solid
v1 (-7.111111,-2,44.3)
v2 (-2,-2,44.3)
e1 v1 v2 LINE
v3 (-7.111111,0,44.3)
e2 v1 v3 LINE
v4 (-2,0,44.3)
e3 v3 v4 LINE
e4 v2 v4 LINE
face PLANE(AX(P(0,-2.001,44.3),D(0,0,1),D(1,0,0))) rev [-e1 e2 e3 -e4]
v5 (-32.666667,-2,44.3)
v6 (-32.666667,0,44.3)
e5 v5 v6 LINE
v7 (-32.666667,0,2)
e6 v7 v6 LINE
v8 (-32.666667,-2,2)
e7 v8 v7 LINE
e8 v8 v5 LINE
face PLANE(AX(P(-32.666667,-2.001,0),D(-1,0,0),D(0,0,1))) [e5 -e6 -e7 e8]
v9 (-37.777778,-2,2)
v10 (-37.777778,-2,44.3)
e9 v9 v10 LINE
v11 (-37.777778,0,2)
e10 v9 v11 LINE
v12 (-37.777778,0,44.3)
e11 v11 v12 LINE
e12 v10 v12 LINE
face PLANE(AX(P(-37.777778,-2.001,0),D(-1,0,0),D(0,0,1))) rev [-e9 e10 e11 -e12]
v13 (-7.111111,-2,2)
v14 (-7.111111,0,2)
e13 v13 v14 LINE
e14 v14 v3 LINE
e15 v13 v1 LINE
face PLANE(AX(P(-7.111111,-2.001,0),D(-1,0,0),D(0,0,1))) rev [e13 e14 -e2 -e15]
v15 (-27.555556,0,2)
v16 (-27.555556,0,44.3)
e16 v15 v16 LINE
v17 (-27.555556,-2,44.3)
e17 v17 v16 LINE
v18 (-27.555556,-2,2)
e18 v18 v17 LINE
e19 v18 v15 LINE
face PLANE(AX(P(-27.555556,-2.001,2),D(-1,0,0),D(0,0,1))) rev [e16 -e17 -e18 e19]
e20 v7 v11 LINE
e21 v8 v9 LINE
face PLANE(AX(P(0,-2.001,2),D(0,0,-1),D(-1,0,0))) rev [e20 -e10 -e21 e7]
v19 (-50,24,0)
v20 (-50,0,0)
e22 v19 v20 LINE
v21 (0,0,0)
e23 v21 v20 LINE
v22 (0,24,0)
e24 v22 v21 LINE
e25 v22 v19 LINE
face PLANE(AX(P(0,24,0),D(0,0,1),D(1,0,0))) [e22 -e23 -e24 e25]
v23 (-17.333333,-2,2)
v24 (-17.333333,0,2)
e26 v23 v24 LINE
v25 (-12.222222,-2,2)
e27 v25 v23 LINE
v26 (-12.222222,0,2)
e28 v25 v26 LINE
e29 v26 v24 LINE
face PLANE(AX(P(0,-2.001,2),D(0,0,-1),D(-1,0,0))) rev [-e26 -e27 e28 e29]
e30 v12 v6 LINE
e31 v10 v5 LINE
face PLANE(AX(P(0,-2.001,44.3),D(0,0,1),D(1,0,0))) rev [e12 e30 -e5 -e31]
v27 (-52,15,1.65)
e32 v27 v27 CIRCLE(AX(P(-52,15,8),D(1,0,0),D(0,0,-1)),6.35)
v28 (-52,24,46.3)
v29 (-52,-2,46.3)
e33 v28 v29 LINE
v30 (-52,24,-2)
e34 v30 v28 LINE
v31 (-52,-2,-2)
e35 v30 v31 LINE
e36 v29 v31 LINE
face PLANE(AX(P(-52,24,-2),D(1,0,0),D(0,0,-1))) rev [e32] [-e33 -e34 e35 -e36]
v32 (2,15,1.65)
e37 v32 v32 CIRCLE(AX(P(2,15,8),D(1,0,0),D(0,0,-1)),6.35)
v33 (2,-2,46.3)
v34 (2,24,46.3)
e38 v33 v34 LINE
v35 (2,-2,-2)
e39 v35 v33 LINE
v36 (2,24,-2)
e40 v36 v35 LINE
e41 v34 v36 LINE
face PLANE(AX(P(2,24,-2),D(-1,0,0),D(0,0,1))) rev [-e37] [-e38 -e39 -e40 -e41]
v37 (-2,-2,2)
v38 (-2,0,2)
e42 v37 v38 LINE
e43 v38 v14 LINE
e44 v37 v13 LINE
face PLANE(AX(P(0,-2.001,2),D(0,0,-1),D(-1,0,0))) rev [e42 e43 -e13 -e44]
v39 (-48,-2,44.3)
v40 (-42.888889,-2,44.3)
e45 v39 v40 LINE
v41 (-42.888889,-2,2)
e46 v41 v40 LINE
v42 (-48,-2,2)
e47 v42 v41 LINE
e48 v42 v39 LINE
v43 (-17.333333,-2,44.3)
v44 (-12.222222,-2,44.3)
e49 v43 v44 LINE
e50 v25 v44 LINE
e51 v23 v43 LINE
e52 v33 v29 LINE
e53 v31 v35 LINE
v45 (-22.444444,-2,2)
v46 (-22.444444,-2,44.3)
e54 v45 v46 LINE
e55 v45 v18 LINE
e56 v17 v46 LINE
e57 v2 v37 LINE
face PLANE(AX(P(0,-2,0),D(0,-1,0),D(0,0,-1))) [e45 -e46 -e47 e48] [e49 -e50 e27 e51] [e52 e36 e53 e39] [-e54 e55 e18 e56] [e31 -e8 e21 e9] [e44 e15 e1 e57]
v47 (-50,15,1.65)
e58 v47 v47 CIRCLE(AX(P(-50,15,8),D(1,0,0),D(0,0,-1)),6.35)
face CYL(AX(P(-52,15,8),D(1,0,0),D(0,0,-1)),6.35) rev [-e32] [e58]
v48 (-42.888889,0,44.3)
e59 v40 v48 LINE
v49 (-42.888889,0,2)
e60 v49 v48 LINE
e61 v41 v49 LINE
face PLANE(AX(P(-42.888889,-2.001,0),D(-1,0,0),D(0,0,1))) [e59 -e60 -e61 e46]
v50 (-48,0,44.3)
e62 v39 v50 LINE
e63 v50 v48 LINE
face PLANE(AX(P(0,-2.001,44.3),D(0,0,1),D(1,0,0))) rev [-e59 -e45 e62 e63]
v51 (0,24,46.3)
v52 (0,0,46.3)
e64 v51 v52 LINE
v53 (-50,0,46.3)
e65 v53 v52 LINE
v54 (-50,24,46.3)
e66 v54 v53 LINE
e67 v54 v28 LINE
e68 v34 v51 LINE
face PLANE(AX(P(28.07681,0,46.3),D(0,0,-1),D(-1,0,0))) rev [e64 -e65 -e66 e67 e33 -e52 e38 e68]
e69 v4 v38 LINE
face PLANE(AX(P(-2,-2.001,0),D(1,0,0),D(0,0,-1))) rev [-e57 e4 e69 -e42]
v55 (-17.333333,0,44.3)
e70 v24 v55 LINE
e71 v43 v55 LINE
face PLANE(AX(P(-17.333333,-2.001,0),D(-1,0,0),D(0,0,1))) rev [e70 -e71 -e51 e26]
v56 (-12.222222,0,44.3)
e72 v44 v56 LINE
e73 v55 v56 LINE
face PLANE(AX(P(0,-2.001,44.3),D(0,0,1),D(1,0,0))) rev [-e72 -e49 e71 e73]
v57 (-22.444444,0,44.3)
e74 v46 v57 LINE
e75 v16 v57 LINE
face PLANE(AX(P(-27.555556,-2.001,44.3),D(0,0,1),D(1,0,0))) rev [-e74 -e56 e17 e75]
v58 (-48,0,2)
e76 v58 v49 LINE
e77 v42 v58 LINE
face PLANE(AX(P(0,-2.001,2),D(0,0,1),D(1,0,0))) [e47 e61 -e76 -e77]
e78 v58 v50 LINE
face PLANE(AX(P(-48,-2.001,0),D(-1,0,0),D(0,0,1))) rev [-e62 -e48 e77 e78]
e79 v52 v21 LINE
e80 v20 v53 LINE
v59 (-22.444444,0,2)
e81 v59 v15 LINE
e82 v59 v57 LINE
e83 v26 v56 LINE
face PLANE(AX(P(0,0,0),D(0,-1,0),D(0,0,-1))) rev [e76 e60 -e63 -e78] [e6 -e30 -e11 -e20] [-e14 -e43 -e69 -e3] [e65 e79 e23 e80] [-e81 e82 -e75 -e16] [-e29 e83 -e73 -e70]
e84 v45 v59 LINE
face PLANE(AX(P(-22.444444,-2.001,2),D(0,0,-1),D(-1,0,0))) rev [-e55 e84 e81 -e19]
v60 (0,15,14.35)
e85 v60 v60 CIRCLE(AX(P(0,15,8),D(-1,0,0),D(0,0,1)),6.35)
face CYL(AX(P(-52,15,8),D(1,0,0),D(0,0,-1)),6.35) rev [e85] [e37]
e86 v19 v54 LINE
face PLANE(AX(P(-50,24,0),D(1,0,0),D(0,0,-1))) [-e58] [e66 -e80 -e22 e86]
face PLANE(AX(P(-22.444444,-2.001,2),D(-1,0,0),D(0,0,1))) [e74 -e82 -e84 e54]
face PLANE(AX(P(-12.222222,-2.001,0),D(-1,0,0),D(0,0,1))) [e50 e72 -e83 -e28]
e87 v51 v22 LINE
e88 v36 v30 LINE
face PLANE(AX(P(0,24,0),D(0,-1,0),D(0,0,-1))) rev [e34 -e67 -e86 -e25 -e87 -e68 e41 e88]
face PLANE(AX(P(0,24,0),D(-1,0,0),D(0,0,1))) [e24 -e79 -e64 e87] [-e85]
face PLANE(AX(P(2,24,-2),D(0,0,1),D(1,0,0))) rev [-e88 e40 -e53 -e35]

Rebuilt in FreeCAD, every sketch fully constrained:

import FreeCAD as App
import Part
import Sketcher
Q = App.Units.Quantity

doc = App.newDocument("Part")
body = doc.addObject("PartDesign::Body", "Body")

sketch1 = body.newObject("Sketcher::SketchObject", "Sketch")
sketch1.AttachmentSupport = (doc.getObject("XZ_Plane"), [""])
sketch1.MapMode = "FlatFace"
sketch1.addGeometry(Part.LineSegment(App.Vector(-52, -2, 0), App.Vector(-52, 48, 0)), False)
sketch1.addGeometry(Part.LineSegment(App.Vector(-52, 48, 0), App.Vector(2, 48, 0)), False)
sketch1.addGeometry(Part.LineSegment(App.Vector(2, 48, 0), App.Vector(2, -2, 0)), False)
sketch1.addGeometry(Part.LineSegment(App.Vector(2, -2, 0), App.Vector(-52, -2, 0)), False)
sketch1.addGeometry(Part.LineSegment(App.Vector(0, 46, 0), App.Vector(-50, 46, 0)), False)
sketch1.addGeometry(Part.LineSegment(App.Vector(-50, 46, 0), App.Vector(-50, 0, 0)), False)
sketch1.addGeometry(Part.LineSegment(App.Vector(-50, 0, 0), App.Vector(0, 0, 0)), False)
sketch1.addGeometry(Part.LineSegment(App.Vector(0, 0, 0), App.Vector(0, 46, 0)), False)
sketch1.addConstraint(Sketcher.Constraint("Coincident", 0, 2, 1, 1))
sketch1.addConstraint(Sketcher.Constraint("Coincident", 1, 2, 2, 1))
sketch1.addConstraint(Sketcher.Constraint("Coincident", 2, 2, 3, 1))
sketch1.addConstraint(Sketcher.Constraint("Coincident", 3, 2, 0, 1))
sketch1.addConstraint(Sketcher.Constraint("Coincident", 4, 2, 5, 1))
sketch1.addConstraint(Sketcher.Constraint("Coincident", 5, 2, 6, 1))
sketch1.addConstraint(Sketcher.Constraint("Coincident", 6, 2, 7, 1))
sketch1.addConstraint(Sketcher.Constraint("Coincident", 7, 2, 4, 1))
sketch1.addConstraint(Sketcher.Constraint("Vertical", 0))
sketch1.addConstraint(Sketcher.Constraint("Horizontal", 1))
sketch1.addConstraint(Sketcher.Constraint("Vertical", 2))
sketch1.addConstraint(Sketcher.Constraint("Horizontal", 3))
sketch1.addConstraint(Sketcher.Constraint("Horizontal", 4))
sketch1.addConstraint(Sketcher.Constraint("Vertical", 5))
sketch1.addConstraint(Sketcher.Constraint("Horizontal", 6))
sketch1.addConstraint(Sketcher.Constraint("Vertical", 7))
sketch1.addConstraint(Sketcher.Constraint("Coincident", 6, 2, -1, 1))
sketch1.addConstraint(Sketcher.Constraint("DistanceX", 1, 1, 1, 2, Q("54 mm")))
sketch1.addConstraint(Sketcher.Constraint("DistanceX", 4, 2, 4, 1, Q("50 mm")))
sketch1.addConstraint(Sketcher.Constraint("DistanceY", 0, 1, 0, 2, Q("50.3 mm")))
sketch1.addConstraint(Sketcher.Constraint("DistanceY", 5, 2, 5, 1, Q("46.3 mm")))
sketch1.addConstraint(Sketcher.Constraint("DistanceX", 0, 2, -1, 1, Q("52 mm")))
sketch1.addConstraint(Sketcher.Constraint("DistanceY", 2, 2, -1, 1, Q("2 mm")))
pad1 = body.newObject("PartDesign::Pad", "Pad")
pad1.Profile = sketch1
pad1.Length = 24
pad1.Reversed = True

sketch2 = body.newObject("Sketcher::SketchObject", "Sketch001")
sketch2.AttachmentSupport = (doc.getObject("XZ_Plane"), [""])
sketch2.MapMode = "FlatFace"
sketch2.addGeometry(Part.LineSegment(App.Vector(-52, 48, 0), App.Vector(-52, -2, 0)), False)
sketch2.addGeometry(Part.LineSegment(App.Vector(-52, -2, 0), App.Vector(2, -2, 0)), False)
sketch2.addGeometry(Part.LineSegment(App.Vector(2, -2, 0), App.Vector(2, 48, 0)), False)
sketch2.addGeometry(Part.LineSegment(App.Vector(2, 48, 0), App.Vector(-52, 48, 0)), False)
sketch2.addConstraint(Sketcher.Constraint("Coincident", 0, 2, 1, 1))
sketch2.addConstraint(Sketcher.Constraint("Coincident", 1, 2, 2, 1))
sketch2.addConstraint(Sketcher.Constraint("Coincident", 2, 2, 3, 1))
sketch2.addConstraint(Sketcher.Constraint("Coincident", 3, 2, 0, 1))
sketch2.addConstraint(Sketcher.Constraint("Vertical", 0))
sketch2.addConstraint(Sketcher.Constraint("Horizontal", 1))
sketch2.addConstraint(Sketcher.Constraint("Vertical", 2))
sketch2.addConstraint(Sketcher.Constraint("Horizontal", 3))
sketch2.addConstraint(Sketcher.Constraint("DistanceX", 1, 1, 1, 2, Q("54 mm")))
sketch2.addConstraint(Sketcher.Constraint("DistanceY", 0, 2, 0, 1, Q("50.3 mm")))
sketch2.addConstraint(Sketcher.Constraint("DistanceX", 0, 2, -1, 1, Q("52 mm")))
sketch2.addConstraint(Sketcher.Constraint("DistanceY", 0, 2, -1, 1, Q("2 mm")))
pad2 = body.newObject("PartDesign::Pad", "Pad001")
pad2.Profile = sketch2
pad2.Length = 2

sketch3 = body.newObject("Sketcher::SketchObject", "Sketch002")
sketch3.AttachmentSupport = (doc.getObject("YZ_Plane"), [""])
sketch3.MapMode = "FlatFace"
sketch3.AttachmentOffset = App.Placement(App.Vector(0, 0, -52), App.Rotation())
sketch3.addGeometry(Part.LineSegment(App.Vector(24, 46.3, 0), App.Vector(-2, 46.3, 0)), False)
sketch3.addGeometry(Part.LineSegment(App.Vector(-2, 46.3, 0), App.Vector(-2, 48.3, 0)), False)
sketch3.addGeometry(Part.LineSegment(App.Vector(-2, 48.3, 0), App.Vector(24, 48.3, 0)), False)
sketch3.addGeometry(Part.LineSegment(App.Vector(24, 48.3, 0), App.Vector(24, 46.3, 0)), False)
sketch3.addConstraint(Sketcher.Constraint("Coincident", 0, 2, 1, 1))
sketch3.addConstraint(Sketcher.Constraint("Coincident", 1, 2, 2, 1))
sketch3.addConstraint(Sketcher.Constraint("Coincident", 2, 2, 3, 1))
sketch3.addConstraint(Sketcher.Constraint("Coincident", 3, 2, 0, 1))
sketch3.addConstraint(Sketcher.Constraint("Horizontal", 0))
sketch3.addConstraint(Sketcher.Constraint("Vertical", 1))
sketch3.addConstraint(Sketcher.Constraint("Horizontal", 2))
sketch3.addConstraint(Sketcher.Constraint("Vertical", 3))
sketch3.addConstraint(Sketcher.Constraint("DistanceX", 0, 2, 0, 1, Q("26 mm")))
sketch3.addConstraint(Sketcher.Constraint("DistanceY", 1, 1, 1, 2, Q("2 mm")))
sketch3.addConstraint(Sketcher.Constraint("DistanceX", 0, 2, -1, 1, Q("2 mm")))
sketch3.addConstraint(Sketcher.Constraint("DistanceY", -1, 1, 0, 2, Q("46.3 mm")))
pocket1 = body.newObject("PartDesign::Pocket", "Pocket")
pocket1.Profile = sketch3
pocket1.Length = 54
pocket1.Reversed = True

sketch4 = body.newObject("Sketcher::SketchObject", "Sketch003")
sketch4.AttachmentSupport = (doc.getObject("XZ_Plane"), [""])
sketch4.MapMode = "FlatFace"
sketch4.addGeometry(Part.LineSegment(App.Vector(-48, 2, 0), App.Vector(-48, 44, 0)), False)
sketch4.addGeometry(Part.LineSegment(App.Vector(-48, 44, 0), App.Vector(-43, 44, 0)), False)
sketch4.addGeometry(Part.LineSegment(App.Vector(-43, 44, 0), App.Vector(-43, 2, 0)), False)
sketch4.addGeometry(Part.LineSegment(App.Vector(-43, 2, 0), App.Vector(-48, 2, 0)), False)
sketch4.addConstraint(Sketcher.Constraint("Coincident", 0, 2, 1, 1))
sketch4.addConstraint(Sketcher.Constraint("Coincident", 1, 2, 2, 1))
sketch4.addConstraint(Sketcher.Constraint("Coincident", 2, 2, 3, 1))
sketch4.addConstraint(Sketcher.Constraint("Coincident", 3, 2, 0, 1))
sketch4.addConstraint(Sketcher.Constraint("Vertical", 0))
sketch4.addConstraint(Sketcher.Constraint("Horizontal", 1))
sketch4.addConstraint(Sketcher.Constraint("Vertical", 2))
sketch4.addConstraint(Sketcher.Constraint("Horizontal", 3))
sketch4.addConstraint(Sketcher.Constraint("DistanceY", 0, 1, 0, 2, Q("42.3 mm")))
sketch4.addConstraint(Sketcher.Constraint("DistanceX", 0, 2, -1, 1, Q("48 mm")))
sketch4.addConstraint(Sketcher.Constraint("DistanceY", -1, 1, 2, 2, Q("2 mm")))
sketch4.addConstraint(Sketcher.Constraint("DistanceX", 1, 1, 1, 2, Q("5.111111 mm")))
pocket2 = body.newObject("PartDesign::Pocket", "Pocket001")
pocket2.Profile = sketch4
pocket2.Type = "UpToFirst"
pocket2.Reversed = True

sketch5 = body.newObject("Sketcher::SketchObject", "Sketch004")
sketch5.AttachmentSupport = (doc.getObject("XZ_Plane"), [""])
sketch5.MapMode = "FlatFace"
sketch5.addGeometry(Part.LineSegment(App.Vector(-38, 2, 0), App.Vector(-38, 44, 0)), False)
sketch5.addGeometry(Part.LineSegment(App.Vector(-38, 44, 0), App.Vector(-33, 44, 0)), False)
sketch5.addGeometry(Part.LineSegment(App.Vector(-33, 44, 0), App.Vector(-33, 2, 0)), False)
sketch5.addGeometry(Part.LineSegment(App.Vector(-33, 2, 0), App.Vector(-38, 2, 0)), False)
sketch5.addConstraint(Sketcher.Constraint("Coincident", 0, 2, 1, 1))
sketch5.addConstraint(Sketcher.Constraint("Coincident", 1, 2, 2, 1))
sketch5.addConstraint(Sketcher.Constraint("Coincident", 2, 2, 3, 1))
sketch5.addConstraint(Sketcher.Constraint("Coincident", 3, 2, 0, 1))
sketch5.addConstraint(Sketcher.Constraint("Vertical", 0))
sketch5.addConstraint(Sketcher.Constraint("Horizontal", 1))
sketch5.addConstraint(Sketcher.Constraint("Vertical", 2))
sketch5.addConstraint(Sketcher.Constraint("Horizontal", 3))
sketch5.addConstraint(Sketcher.Constraint("DistanceY", 0, 1, 0, 2, Q("42.3 mm")))
sketch5.addConstraint(Sketcher.Constraint("DistanceY", -1, 1, 2, 2, Q("2 mm")))
sketch5.addConstraint(Sketcher.Constraint("DistanceX", 1, 1, 1, 2, Q("5.111111 mm")))
sketch5.addConstraint(Sketcher.Constraint("DistanceX", 0, 2, -1, 1, Q("37.777778 mm")))
pocket3 = body.newObject("PartDesign::Pocket", "Pocket002")
pocket3.Profile = sketch5
pocket3.Type = "UpToFirst"
pocket3.Reversed = True

sketch6 = body.newObject("Sketcher::SketchObject", "Sketch005")
sketch6.AttachmentSupport = (doc.getObject("XZ_Plane"), [""])
sketch6.MapMode = "FlatFace"
sketch6.addGeometry(Part.LineSegment(App.Vector(-17, 2, 0), App.Vector(-17, 44, 0)), False)
sketch6.addGeometry(Part.LineSegment(App.Vector(-17, 44, 0), App.Vector(-12, 44, 0)), False)
sketch6.addGeometry(Part.LineSegment(App.Vector(-12, 44, 0), App.Vector(-12, 2, 0)), False)
sketch6.addGeometry(Part.LineSegment(App.Vector(-12, 2, 0), App.Vector(-17, 2, 0)), False)
sketch6.addConstraint(Sketcher.Constraint("Coincident", 0, 2, 1, 1))
sketch6.addConstraint(Sketcher.Constraint("Coincident", 1, 2, 2, 1))
sketch6.addConstraint(Sketcher.Constraint("Coincident", 2, 2, 3, 1))
sketch6.addConstraint(Sketcher.Constraint("Coincident", 3, 2, 0, 1))
sketch6.addConstraint(Sketcher.Constraint("Vertical", 0))
sketch6.addConstraint(Sketcher.Constraint("Horizontal", 1))
sketch6.addConstraint(Sketcher.Constraint("Vertical", 2))
sketch6.addConstraint(Sketcher.Constraint("Horizontal", 3))
sketch6.addConstraint(Sketcher.Constraint("DistanceY", 0, 1, 0, 2, Q("42.3 mm")))
sketch6.addConstraint(Sketcher.Constraint("DistanceY", -1, 1, 2, 2, Q("2 mm")))
sketch6.addConstraint(Sketcher.Constraint("DistanceX", 1, 1, 1, 2, Q("5.111111 mm")))
sketch6.addConstraint(Sketcher.Constraint("DistanceX", 0, 2, -1, 1, Q("17.333333 mm")))
pocket4 = body.newObject("PartDesign::Pocket", "Pocket003")
pocket4.Profile = sketch6
pocket4.Type = "UpToFirst"
pocket4.Reversed = True

sketch7 = body.newObject("Sketcher::SketchObject", "Sketch006")
sketch7.AttachmentSupport = (doc.getObject("XZ_Plane"), [""])
sketch7.MapMode = "FlatFace"
sketch7.addGeometry(Part.LineSegment(App.Vector(-7, 2, 0), App.Vector(-7, 44, 0)), False)
sketch7.addGeometry(Part.LineSegment(App.Vector(-7, 44, 0), App.Vector(-2, 44, 0)), False)
sketch7.addGeometry(Part.LineSegment(App.Vector(-2, 44, 0), App.Vector(-2, 2, 0)), False)
sketch7.addGeometry(Part.LineSegment(App.Vector(-2, 2, 0), App.Vector(-7, 2, 0)), False)
sketch7.addConstraint(Sketcher.Constraint("Coincident", 0, 2, 1, 1))
sketch7.addConstraint(Sketcher.Constraint("Coincident", 1, 2, 2, 1))
sketch7.addConstraint(Sketcher.Constraint("Coincident", 2, 2, 3, 1))
sketch7.addConstraint(Sketcher.Constraint("Coincident", 3, 2, 0, 1))
sketch7.addConstraint(Sketcher.Constraint("Vertical", 0))
sketch7.addConstraint(Sketcher.Constraint("Horizontal", 1))
sketch7.addConstraint(Sketcher.Constraint("Vertical", 2))
sketch7.addConstraint(Sketcher.Constraint("Horizontal", 3))
sketch7.addConstraint(Sketcher.Constraint("DistanceY", 0, 1, 0, 2, Q("42.3 mm")))
sketch7.addConstraint(Sketcher.Constraint("DistanceX", 1, 2, -1, 1, Q("2 mm")))
sketch7.addConstraint(Sketcher.Constraint("DistanceY", -1, 1, 2, 2, Q("2 mm")))
sketch7.addConstraint(Sketcher.Constraint("DistanceX", 1, 1, 1, 2, Q("5.111111 mm")))
pocket5 = body.newObject("PartDesign::Pocket", "Pocket004")
pocket5.Profile = sketch7
pocket5.Type = "UpToFirst"
pocket5.Reversed = True

sketch8 = body.newObject("Sketcher::SketchObject", "Sketch007")
sketch8.AttachmentSupport = (doc.getObject("XZ_Plane"), [""])
sketch8.MapMode = "FlatFace"
sketch8.addGeometry(Part.LineSegment(App.Vector(-28, 2, 0), App.Vector(-28, 44, 0)), False)
sketch8.addGeometry(Part.LineSegment(App.Vector(-28, 44, 0), App.Vector(-22, 44, 0)), False)
sketch8.addGeometry(Part.LineSegment(App.Vector(-22, 44, 0), App.Vector(-22, 2, 0)), False)
sketch8.addGeometry(Part.LineSegment(App.Vector(-22, 2, 0), App.Vector(-28, 2, 0)), False)
sketch8.addConstraint(Sketcher.Constraint("Coincident", 0, 2, 1, 1))
sketch8.addConstraint(Sketcher.Constraint("Coincident", 1, 2, 2, 1))
sketch8.addConstraint(Sketcher.Constraint("Coincident", 2, 2, 3, 1))
sketch8.addConstraint(Sketcher.Constraint("Coincident", 3, 2, 0, 1))
sketch8.addConstraint(Sketcher.Constraint("Vertical", 0))
sketch8.addConstraint(Sketcher.Constraint("Horizontal", 1))
sketch8.addConstraint(Sketcher.Constraint("Vertical", 2))
sketch8.addConstraint(Sketcher.Constraint("Horizontal", 3))
sketch8.addConstraint(Sketcher.Constraint("DistanceY", 0, 1, 0, 2, Q("42.3 mm")))
sketch8.addConstraint(Sketcher.Constraint("DistanceY", -1, 1, 2, 2, Q("2 mm")))
sketch8.addConstraint(Sketcher.Constraint("DistanceX", 1, 1, 1, 2, Q("5.111111 mm")))
sketch8.addConstraint(Sketcher.Constraint("DistanceX", 0, 2, -1, 1, Q("27.555556 mm")))
pocket6 = body.newObject("PartDesign::Pocket", "Pocket005")
pocket6.Profile = sketch8
pocket6.Type = "UpToFirst"
pocket6.Reversed = True

sketch9 = body.newObject("Sketcher::SketchObject", "Sketch008")
sketch9.AttachmentSupport = (doc.getObject("YZ_Plane"), [""])
sketch9.MapMode = "FlatFace"
sketch9.AttachmentOffset = App.Placement(App.Vector(0, 0, -25), App.Rotation())
sketch9.addGeometry(Part.Circle(App.Vector(15, 8, 0), App.Vector(0, 0, 1), 6), False)
sketch9.addConstraint(Sketcher.Constraint("Diameter", 0, Q("12.7 mm")))
sketch9.addConstraint(Sketcher.Constraint("DistanceX", -1, 1, 0, 3, Q("15 mm")))
sketch9.addConstraint(Sketcher.Constraint("DistanceY", -1, 1, 0, 3, Q("8 mm")))
pocket7 = body.newObject("PartDesign::Pocket", "Pocket006")
pocket7.Profile = sketch9
pocket7.Type = "ThroughAll"
pocket7.Midplane = True

doc.recompute()
